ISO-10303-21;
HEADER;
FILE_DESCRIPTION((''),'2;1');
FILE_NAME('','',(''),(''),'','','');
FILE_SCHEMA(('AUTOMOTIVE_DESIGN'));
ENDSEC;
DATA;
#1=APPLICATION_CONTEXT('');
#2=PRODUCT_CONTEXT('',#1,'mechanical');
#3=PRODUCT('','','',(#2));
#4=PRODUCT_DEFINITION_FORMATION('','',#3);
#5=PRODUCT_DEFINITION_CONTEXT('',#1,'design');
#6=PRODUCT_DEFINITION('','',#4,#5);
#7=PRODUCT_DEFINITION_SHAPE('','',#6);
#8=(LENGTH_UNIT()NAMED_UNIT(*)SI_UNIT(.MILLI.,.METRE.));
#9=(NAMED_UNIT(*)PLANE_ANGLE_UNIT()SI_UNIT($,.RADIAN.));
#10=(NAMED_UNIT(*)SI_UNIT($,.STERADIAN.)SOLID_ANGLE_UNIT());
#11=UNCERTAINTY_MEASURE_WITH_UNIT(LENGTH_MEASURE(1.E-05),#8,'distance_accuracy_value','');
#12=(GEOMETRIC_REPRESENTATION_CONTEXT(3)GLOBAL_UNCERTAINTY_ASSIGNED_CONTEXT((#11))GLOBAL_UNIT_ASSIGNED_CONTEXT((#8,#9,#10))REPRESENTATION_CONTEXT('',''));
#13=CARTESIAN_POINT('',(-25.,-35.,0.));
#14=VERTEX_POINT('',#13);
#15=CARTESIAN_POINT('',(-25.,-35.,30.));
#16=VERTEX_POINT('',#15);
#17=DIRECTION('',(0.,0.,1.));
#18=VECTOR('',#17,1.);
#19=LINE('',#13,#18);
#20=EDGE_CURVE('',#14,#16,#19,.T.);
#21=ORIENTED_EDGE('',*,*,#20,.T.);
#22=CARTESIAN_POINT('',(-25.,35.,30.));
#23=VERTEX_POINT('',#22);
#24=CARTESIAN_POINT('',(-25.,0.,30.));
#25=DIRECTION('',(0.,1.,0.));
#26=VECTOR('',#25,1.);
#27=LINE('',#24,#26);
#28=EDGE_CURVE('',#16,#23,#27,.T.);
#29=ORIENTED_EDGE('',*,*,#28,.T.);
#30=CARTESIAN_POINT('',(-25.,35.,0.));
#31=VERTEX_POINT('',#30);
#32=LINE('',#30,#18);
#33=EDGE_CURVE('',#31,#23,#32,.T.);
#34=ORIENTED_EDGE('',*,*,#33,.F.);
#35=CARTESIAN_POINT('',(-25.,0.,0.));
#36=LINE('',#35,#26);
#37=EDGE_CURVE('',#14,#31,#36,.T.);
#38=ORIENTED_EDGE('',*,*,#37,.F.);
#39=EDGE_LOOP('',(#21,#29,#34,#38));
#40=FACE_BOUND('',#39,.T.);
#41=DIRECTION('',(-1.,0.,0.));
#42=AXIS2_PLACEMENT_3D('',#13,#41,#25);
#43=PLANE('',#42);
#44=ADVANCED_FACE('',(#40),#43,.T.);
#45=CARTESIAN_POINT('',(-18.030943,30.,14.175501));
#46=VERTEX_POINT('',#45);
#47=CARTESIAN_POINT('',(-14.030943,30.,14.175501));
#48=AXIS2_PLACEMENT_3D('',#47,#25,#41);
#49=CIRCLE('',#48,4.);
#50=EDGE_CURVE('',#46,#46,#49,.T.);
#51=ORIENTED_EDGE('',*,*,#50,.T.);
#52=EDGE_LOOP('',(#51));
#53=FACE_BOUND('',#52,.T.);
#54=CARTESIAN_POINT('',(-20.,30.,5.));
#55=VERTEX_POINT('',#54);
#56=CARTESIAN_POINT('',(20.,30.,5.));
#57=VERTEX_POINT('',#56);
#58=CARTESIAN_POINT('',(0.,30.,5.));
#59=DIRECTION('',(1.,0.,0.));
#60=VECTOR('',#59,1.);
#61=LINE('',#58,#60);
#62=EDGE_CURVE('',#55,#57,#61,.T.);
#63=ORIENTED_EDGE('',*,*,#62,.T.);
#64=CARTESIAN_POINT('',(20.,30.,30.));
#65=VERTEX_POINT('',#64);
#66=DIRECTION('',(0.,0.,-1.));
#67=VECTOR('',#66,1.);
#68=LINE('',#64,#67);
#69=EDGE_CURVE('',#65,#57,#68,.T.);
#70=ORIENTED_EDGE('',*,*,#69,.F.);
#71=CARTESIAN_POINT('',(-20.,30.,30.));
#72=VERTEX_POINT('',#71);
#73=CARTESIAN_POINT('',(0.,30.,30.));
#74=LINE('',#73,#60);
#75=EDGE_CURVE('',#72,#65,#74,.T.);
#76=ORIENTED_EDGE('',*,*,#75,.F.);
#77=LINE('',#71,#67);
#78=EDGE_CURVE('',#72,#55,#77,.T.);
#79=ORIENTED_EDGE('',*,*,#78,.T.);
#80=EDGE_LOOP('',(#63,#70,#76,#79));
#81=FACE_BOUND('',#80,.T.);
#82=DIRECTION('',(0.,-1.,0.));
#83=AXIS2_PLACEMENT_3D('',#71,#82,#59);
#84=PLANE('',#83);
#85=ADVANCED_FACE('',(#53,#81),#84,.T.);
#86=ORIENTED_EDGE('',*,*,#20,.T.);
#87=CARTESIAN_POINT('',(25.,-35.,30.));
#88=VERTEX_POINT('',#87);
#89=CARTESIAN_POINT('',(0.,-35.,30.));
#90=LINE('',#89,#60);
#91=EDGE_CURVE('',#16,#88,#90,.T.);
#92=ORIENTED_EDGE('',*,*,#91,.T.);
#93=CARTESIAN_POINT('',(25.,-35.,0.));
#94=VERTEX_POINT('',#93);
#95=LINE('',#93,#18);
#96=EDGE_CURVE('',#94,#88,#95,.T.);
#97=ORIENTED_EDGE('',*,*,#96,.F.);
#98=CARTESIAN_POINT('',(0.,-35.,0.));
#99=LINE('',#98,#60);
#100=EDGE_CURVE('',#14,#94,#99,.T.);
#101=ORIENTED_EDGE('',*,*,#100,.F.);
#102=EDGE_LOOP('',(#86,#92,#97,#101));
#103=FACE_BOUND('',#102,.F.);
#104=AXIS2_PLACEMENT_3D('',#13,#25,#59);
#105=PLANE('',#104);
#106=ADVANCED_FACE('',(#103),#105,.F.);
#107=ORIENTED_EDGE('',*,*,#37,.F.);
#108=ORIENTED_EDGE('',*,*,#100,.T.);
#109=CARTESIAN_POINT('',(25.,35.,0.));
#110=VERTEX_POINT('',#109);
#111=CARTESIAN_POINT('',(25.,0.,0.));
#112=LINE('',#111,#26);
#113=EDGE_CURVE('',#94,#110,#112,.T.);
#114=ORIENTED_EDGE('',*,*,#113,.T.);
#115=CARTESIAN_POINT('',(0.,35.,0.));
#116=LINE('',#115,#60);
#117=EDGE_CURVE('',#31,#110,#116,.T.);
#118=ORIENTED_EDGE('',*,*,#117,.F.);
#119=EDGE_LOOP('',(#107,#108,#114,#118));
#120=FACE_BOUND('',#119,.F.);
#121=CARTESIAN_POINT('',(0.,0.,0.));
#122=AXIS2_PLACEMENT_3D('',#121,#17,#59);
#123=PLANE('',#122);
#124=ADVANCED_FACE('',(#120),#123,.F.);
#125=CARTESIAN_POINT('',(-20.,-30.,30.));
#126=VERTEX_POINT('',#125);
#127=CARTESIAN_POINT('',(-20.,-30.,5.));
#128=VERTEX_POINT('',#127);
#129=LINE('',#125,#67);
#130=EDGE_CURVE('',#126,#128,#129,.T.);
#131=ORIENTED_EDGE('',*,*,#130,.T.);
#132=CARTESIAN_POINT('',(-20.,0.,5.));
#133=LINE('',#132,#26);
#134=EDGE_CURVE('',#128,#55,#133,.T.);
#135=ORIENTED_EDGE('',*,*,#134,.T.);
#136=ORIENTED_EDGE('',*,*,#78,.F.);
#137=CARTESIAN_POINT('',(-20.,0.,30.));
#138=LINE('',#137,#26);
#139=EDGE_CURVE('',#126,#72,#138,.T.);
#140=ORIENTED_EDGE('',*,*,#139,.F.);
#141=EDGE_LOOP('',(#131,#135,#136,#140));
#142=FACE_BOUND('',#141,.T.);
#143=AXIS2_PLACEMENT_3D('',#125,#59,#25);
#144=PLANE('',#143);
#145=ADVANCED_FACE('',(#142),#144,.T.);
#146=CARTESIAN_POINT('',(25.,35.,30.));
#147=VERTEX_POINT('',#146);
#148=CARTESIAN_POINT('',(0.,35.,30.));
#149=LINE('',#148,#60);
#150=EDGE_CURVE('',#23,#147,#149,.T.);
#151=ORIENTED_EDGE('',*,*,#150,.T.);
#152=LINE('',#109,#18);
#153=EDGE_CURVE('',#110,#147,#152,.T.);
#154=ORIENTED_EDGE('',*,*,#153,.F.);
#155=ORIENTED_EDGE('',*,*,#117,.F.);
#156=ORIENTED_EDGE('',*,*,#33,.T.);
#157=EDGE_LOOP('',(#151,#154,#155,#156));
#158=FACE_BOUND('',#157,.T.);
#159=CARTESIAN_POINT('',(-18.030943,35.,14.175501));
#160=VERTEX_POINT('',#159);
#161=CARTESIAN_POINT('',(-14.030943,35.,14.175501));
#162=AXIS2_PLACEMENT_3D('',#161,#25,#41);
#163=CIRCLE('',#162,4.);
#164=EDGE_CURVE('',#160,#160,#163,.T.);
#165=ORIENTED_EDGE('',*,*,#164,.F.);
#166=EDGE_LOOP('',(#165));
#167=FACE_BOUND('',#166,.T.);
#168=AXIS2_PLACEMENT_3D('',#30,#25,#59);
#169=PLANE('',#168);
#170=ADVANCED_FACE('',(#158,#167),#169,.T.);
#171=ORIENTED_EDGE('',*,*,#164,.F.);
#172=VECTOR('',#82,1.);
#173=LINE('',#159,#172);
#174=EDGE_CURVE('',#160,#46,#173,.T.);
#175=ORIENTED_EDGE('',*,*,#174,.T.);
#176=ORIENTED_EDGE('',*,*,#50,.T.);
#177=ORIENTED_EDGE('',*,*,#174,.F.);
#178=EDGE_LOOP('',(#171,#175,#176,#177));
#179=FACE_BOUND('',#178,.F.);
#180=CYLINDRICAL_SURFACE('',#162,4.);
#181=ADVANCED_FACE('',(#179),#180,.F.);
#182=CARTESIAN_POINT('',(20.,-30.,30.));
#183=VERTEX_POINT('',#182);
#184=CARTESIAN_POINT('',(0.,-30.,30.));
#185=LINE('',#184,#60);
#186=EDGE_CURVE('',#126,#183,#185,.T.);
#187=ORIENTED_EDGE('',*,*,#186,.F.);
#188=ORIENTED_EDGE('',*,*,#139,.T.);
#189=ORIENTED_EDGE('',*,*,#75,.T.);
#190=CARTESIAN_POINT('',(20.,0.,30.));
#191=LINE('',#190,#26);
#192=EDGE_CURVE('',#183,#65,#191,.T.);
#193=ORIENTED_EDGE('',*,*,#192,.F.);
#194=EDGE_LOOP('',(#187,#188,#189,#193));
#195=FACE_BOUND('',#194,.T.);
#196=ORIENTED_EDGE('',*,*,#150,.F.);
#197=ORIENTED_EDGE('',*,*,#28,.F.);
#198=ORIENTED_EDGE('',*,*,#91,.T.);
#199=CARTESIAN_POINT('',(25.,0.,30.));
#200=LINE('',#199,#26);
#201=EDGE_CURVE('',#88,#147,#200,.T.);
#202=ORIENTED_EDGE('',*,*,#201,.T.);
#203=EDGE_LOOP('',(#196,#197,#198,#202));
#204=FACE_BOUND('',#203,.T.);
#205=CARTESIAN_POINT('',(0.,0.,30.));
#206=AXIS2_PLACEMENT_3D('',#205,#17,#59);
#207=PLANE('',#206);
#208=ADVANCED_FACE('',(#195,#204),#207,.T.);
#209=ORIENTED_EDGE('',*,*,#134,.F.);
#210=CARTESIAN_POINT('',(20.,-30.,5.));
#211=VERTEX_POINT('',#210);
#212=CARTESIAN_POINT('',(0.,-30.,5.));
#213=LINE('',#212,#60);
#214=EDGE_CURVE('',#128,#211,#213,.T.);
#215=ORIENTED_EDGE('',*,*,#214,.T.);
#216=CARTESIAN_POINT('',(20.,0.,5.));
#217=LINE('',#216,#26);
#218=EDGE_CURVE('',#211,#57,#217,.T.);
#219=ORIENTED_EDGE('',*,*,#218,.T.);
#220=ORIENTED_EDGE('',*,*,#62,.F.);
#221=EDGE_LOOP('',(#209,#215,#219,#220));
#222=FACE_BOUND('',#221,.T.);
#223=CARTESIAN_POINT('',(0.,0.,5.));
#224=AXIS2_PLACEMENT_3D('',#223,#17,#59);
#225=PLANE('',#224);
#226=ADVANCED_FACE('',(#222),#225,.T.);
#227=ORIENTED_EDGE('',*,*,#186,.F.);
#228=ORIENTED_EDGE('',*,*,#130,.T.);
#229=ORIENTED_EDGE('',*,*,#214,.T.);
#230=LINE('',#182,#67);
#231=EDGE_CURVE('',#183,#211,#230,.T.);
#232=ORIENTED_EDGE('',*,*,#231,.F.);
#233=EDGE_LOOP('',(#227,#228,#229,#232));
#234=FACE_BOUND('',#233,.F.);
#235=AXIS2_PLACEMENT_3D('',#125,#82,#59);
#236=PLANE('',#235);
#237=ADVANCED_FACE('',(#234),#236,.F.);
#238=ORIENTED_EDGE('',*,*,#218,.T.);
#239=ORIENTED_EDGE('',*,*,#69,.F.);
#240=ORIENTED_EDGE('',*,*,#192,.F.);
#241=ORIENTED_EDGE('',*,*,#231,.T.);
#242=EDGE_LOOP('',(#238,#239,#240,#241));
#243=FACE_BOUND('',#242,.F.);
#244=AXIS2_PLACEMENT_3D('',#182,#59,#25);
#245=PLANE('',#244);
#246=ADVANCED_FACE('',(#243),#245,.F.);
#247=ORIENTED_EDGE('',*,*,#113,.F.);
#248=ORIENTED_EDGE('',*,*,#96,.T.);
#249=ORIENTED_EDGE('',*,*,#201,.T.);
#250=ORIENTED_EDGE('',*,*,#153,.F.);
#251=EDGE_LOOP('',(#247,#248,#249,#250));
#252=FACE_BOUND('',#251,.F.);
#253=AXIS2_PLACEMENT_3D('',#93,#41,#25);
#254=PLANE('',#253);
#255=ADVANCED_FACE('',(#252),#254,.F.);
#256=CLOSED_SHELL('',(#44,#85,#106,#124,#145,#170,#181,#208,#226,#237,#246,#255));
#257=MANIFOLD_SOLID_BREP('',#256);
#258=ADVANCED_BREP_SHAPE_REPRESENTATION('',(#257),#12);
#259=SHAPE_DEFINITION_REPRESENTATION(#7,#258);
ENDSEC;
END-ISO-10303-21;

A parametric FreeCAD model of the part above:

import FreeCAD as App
import Part
import Sketcher

V = App.Vector
Q = App.Units.Quantity

doc = App.newDocument("Part")
body = doc.addObject("PartDesign::Body", "Body")

sketch1 = body.newObject("Sketcher::SketchObject", "Sketch")
sketch1.AttachmentSupport = (doc.getObject("XY_Plane"), [""])
sketch1.MapMode = "FlatFace"
sketch1.addGeometry(Part.LineSegment(V(-25, 35, 0), V(-25, -35, 0)), False)
sketch1.addGeometry(Part.LineSegment(V(-25, -35, 0), V(25, -35, 0)), False)
sketch1.addGeometry(Part.LineSegment(V(25, -35, 0), V(25, 35, 0)), False)
sketch1.addGeometry(Part.LineSegment(V(25, 35, 0), V(-25, 35, 0)), False)
sketch1.addConstraint(Sketcher.Constraint("Coincident", 0, 2, 1, 1))
sketch1.addConstraint(Sketcher.Constraint("Coincident", 1, 2, 2, 1))
sketch1.addConstraint(Sketcher.Constraint("Coincident", 2, 2, 3, 1))
sketch1.addConstraint(Sketcher.Constraint("Coincident", 3, 2, 0, 1))
sketch1.addConstraint(Sketcher.Constraint("Vertical", 0))
sketch1.addConstraint(Sketcher.Constraint("Horizontal", 1))
sketch1.addConstraint(Sketcher.Constraint("Vertical", 2))
sketch1.addConstraint(Sketcher.Constraint("Horizontal", 3))
sketch1.addConstraint(Sketcher.Constraint("Symmetric", 0, 2, 2, 2, -1, 1))
sketch1.addConstraint(Sketcher.Constraint("DistanceX", 1, 1, 1, 2, Q("50 mm")))
sketch1.addConstraint(Sketcher.Constraint("DistanceY", 0, 2, 0, 1, Q("70 mm")))
pad1 = body.newObject("PartDesign::Pad", "Pad")
pad1.Profile = sketch1
pad1.Length = 30

sketch2 = body.newObject("Sketcher::SketchObject", "Sketch001")
sketch2.AttachmentSupport = (doc.getObject("XY_Plane"), [""])
sketch2.MapMode = "FlatFace"
sketch2.AttachmentOffset = App.Placement(V(0, 0, 30), App.Rotation())
sketch2.addGeometry(Part.LineSegment(V(-20, 30, 0), V(-20, -30, 0)), False)
sketch2.addGeometry(Part.LineSegment(V(-20, -30, 0), V(20, -30, 0)), False)
sketch2.addGeometry(Part.LineSegment(V(20, -30, 0), V(20, 30, 0)), False)
sketch2.addGeometry(Part.LineSegment(V(20, 30, 0), V(-20, 30, 0)), False)
sketch2.addConstraint(Sketcher.Constraint("Coincident", 0, 2, 1, 1))
sketch2.addConstraint(Sketcher.Constraint("Coincident", 1, 2, 2, 1))
sketch2.addConstraint(Sketcher.Constraint("Coincident", 2, 2, 3, 1))
sketch2.addConstraint(Sketcher.Constraint("Coincident", 3, 2, 0, 1))
sketch2.addConstraint(Sketcher.Constraint("Vertical", 0))
sketch2.addConstraint(Sketcher.Constraint("Horizontal", 1))
sketch2.addConstraint(Sketcher.Constraint("Vertical", 2))
sketch2.addConstraint(Sketcher.Constraint("Horizontal", 3))
sketch2.addConstraint(Sketcher.Constraint("Symmetric", 0, 2, 2, 2, -1, 1))
sketch2.addConstraint(Sketcher.Constraint("DistanceX", 1, 1, 1, 2, Q("40 mm")))
sketch2.addConstraint(Sketcher.Constraint("DistanceY", 0, 2, 0, 1, Q("60 mm")))
pocket1 = body.newObject("PartDesign::Pocket", "Pocket")
pocket1.Profile = sketch2
pocket1.Length = 25

sketch3 = body.newObject("Sketcher::SketchObject", "Sketch002")
sketch3.AttachmentSupport = (doc.getObject("XZ_Plane"), [""])
sketch3.MapMode = "FlatFace"
sketch3.AttachmentOffset = App.Placement(V(0, 0, -35), App.Rotation())
sketch3.addGeometry(Part.Circle(V(-14.030943, 14.175501, 0), V(0, 0, 1), 4), False)
sketch3.addConstraint(Sketcher.Constraint("Diameter", 0, Q("8 mm")))
sketch3.addConstraint(Sketcher.Constraint("DistanceY", -1, 1, 0, 3, Q("14.175501 mm")))
sketch3.addConstraint(Sketcher.Constraint("DistanceX", 0, 3, -1, 1, Q("14.030943 mm")))
pocket2 = body.newObject("PartDesign::Pocket", "Pocket001")
pocket2.Profile = sketch3
pocket2.Length = 5
pocket2.Reversed = True

doc.recompute()
